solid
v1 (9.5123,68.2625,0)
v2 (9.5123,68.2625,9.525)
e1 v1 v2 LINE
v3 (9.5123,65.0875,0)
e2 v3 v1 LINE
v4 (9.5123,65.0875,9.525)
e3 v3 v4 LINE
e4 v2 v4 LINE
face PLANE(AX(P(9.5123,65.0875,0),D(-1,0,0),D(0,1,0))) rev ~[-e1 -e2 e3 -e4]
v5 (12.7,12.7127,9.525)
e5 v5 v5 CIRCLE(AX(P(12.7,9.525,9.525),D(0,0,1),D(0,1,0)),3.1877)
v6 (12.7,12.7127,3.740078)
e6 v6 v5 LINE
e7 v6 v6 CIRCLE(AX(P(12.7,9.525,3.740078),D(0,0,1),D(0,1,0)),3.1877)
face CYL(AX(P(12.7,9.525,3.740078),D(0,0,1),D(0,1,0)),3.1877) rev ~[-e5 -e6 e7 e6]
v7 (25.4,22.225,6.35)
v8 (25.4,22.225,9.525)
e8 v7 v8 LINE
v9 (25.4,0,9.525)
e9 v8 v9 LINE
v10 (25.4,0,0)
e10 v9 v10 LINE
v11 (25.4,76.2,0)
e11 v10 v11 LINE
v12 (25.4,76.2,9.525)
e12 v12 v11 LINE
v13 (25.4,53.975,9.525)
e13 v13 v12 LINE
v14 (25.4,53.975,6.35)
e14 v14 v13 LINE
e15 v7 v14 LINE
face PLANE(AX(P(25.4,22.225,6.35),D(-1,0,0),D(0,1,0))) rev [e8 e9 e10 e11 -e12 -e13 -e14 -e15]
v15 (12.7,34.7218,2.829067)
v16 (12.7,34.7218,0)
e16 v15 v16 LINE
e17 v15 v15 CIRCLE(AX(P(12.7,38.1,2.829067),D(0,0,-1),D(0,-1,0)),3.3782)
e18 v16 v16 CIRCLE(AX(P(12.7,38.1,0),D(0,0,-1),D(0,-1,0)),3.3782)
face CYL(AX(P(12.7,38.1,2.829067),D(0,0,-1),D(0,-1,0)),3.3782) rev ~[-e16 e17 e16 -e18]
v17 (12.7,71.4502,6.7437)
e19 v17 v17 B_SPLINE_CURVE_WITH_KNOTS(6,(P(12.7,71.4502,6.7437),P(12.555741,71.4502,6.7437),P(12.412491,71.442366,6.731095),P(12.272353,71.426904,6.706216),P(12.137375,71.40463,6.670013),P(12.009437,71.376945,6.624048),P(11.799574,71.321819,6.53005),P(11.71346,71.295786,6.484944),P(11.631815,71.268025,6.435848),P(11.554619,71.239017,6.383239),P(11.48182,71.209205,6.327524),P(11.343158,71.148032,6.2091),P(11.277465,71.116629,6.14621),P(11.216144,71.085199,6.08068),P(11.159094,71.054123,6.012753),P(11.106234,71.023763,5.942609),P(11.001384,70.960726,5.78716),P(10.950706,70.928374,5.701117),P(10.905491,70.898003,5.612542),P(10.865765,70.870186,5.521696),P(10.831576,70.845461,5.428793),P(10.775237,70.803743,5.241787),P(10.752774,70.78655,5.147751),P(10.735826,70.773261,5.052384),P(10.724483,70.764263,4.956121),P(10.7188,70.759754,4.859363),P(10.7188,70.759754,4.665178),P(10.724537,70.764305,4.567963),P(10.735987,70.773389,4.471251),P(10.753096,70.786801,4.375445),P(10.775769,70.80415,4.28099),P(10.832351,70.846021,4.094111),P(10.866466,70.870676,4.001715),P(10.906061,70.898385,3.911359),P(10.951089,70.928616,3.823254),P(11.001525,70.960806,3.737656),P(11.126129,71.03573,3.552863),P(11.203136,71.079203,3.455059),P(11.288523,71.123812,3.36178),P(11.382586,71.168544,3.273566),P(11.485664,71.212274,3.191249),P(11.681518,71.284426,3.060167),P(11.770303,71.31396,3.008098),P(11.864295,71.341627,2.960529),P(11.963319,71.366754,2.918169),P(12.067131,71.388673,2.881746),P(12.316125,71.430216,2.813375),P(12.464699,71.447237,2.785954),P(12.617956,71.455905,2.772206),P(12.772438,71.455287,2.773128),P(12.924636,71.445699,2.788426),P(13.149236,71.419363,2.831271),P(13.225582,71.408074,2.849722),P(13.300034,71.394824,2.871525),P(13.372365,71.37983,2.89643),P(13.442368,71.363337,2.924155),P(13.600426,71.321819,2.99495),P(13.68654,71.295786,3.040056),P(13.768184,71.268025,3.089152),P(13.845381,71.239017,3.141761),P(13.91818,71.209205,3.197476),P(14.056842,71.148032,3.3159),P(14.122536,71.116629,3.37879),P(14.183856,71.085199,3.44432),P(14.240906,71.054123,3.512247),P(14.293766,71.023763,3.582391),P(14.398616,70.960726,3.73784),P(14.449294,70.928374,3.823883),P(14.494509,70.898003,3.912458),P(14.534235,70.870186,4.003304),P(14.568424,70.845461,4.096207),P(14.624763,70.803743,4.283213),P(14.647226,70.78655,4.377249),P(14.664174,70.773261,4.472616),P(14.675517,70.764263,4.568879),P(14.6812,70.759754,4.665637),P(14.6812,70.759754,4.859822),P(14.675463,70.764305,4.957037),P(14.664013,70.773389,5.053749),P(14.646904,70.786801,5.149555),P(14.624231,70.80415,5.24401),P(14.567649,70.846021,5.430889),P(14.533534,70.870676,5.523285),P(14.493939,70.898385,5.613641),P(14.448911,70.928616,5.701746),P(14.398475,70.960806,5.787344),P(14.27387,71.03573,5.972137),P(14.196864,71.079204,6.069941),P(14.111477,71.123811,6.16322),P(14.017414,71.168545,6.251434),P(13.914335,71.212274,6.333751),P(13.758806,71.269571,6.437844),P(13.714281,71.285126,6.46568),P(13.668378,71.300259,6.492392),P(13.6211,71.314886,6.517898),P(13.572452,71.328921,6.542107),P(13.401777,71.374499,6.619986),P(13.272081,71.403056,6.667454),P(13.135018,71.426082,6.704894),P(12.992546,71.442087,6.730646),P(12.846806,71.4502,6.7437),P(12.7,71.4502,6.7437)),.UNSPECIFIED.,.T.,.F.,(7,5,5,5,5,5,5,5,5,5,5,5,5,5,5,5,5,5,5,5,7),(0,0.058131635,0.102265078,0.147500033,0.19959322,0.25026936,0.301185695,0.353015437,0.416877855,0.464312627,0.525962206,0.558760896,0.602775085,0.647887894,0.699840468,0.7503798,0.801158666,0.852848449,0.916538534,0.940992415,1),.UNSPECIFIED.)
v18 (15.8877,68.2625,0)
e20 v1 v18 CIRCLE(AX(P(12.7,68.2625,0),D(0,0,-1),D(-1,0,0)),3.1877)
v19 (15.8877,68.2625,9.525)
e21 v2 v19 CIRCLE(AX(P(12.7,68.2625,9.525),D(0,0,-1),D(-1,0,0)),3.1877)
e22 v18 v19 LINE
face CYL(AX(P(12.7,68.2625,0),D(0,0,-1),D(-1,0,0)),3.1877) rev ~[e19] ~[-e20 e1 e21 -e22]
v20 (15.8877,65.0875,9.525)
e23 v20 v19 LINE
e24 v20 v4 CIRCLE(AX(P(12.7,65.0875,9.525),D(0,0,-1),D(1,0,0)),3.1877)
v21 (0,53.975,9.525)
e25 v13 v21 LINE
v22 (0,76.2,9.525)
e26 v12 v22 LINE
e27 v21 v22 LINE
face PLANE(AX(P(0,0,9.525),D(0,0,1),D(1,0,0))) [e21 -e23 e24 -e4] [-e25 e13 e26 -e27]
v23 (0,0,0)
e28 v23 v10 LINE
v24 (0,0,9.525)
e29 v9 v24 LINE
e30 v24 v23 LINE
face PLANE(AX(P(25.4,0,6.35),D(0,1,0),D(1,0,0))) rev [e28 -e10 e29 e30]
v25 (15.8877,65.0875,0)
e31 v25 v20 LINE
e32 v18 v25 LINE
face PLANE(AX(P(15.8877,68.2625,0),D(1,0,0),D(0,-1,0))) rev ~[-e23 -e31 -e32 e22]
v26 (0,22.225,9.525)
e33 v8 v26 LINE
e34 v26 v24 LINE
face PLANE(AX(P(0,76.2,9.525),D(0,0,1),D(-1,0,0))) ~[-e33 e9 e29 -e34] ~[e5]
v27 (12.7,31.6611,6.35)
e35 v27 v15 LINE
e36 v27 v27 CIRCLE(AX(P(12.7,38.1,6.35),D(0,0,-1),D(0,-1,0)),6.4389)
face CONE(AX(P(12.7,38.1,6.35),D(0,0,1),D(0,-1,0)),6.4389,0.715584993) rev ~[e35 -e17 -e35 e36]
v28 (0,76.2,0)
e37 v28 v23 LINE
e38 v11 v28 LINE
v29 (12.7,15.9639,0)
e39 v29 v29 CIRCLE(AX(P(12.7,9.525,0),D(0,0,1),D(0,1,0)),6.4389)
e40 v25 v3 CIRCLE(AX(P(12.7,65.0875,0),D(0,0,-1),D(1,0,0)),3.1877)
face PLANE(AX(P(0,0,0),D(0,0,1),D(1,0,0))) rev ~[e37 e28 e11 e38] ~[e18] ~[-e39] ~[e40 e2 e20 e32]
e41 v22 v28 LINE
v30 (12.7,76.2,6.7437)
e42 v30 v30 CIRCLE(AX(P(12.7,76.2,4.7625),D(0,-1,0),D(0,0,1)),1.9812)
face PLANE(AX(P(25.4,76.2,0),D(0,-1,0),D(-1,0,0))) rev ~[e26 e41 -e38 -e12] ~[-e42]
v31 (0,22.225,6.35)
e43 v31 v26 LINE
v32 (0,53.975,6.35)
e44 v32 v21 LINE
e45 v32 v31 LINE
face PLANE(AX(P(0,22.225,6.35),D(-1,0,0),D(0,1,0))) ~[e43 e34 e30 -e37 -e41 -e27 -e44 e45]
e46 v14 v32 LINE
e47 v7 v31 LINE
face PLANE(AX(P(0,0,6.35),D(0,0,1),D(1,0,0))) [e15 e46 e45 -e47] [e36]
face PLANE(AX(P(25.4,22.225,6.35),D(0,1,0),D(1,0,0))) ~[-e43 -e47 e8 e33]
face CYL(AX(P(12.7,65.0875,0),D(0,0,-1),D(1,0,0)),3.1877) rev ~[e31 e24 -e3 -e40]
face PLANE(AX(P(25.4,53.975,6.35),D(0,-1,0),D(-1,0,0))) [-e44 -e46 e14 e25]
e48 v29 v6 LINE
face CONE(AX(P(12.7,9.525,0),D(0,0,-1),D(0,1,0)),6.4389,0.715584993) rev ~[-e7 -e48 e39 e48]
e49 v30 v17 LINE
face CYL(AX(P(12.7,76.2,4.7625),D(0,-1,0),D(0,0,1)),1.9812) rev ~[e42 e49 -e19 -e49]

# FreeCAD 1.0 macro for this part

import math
import FreeCAD as App
import Part
import Sketcher
Q = App.Units.Quantity


def add_polygon(sketch, points):
    """Adds a closed chain of lines whose ends are joined by coincident constraints."""
    first, n = sketch.GeometryCount, len(points)
    for a, b in zip(points, points[1:] + points[:1]):
        sketch.addGeometry(Part.LineSegment(App.Vector(*a, 0), App.Vector(*b, 0)), False)
    for i in range(n):
        sketch.addConstraint(Sketcher.Constraint("Coincident", first + i, 2, first + (i + 1) % n, 1))

doc = App.newDocument("Part")
params = doc.addObject("Spreadsheet::Sheet", "Params")
for row, (alias, value) in enumerate([
    ("sketch1_width", "1 in"),
    ("sketch1_height", "3 in"),
    ("pad1_length", "0.25 in"),
    ("sketch2_width", "1 in"),
    ("sketch2_height", "0.875 in"),
    ("pad2_length", "0.125 in"),
    ("sketch3_diameter", "0.266 in"),
    ("hole_diameter", "0.266 in"),
    ("hole_csink_diameter", "0.507 in"),
    ("sketch4_diameter", "0.251 in"),
    ("hole2_diameter", "0.251 in"),
    ("hole2_csink_diameter", "0.507 in"),
    ("sketch5_height", "0.125 in"),
    ("sketch6_diameter", "0.156 in"),
    ("hole3_diameter", "0.156 in"),
    ("hole3_depth", "0.375 in"),
], start=1):
    params.set(f"A{row}", alias)
    params.set(f"B{row}", "=" + value)
    params.setAlias(f"B{row}", alias)

body = doc.addObject("PartDesign::Body", "Body")

# Sketch on XY plane
sketch1 = body.newObject("Sketcher::SketchObject", "Sketch")
sketch1.AttachmentSupport = (doc.getObject("XY_Plane"), [""])
sketch1.MapMode = "FlatFace"
add_polygon(sketch1, [(0, 76), (0, 0), (25, 0), (25, 76)])  # lines 0-3
sketch1.addConstraint([
    Sketcher.Constraint("Vertical", 0),
    Sketcher.Constraint("Horizontal", 1),
    Sketcher.Constraint("Vertical", 2),
    Sketcher.Constraint("Horizontal", 3),
    Sketcher.Constraint("Coincident", 0, 2, -1, 1),
    Sketcher.Constraint("DistanceX", 1, 1, 1, 2, Q("1 in")),
    Sketcher.Constraint("DistanceY", 0, 2, 0, 1, Q("3 in")),
])
sketch1.setExpression("Constraints[9]", "Params.sketch1_width")
sketch1.setExpression("Constraints[10]", "Params.sketch1_height")
pad1 = body.newObject("PartDesign::Pad", "Pad")
pad1.Profile = sketch1
pad1.setExpression("Length", "Params.pad1_length")

# Sketch on XY plane
sketch2 = body.newObject("Sketcher::SketchObject", "Sketch001")
sketch2.AttachmentSupport = (doc.getObject("XY_Plane"), [""])
sketch2.MapMode = "FlatFace"
sketch2.AttachmentOffset = App.Placement(App.Vector(0, 0, 0.25 * 25.4), App.Rotation())
add_polygon(sketch2, [(25, 54), (25, 76), (0, 76), (0, 54)])  # lines 0-3
sketch2.addConstraint([
    Sketcher.Constraint("Vertical", 0),
    Sketcher.Constraint("Horizontal", 1),
    Sketcher.Constraint("Vertical", 2),
    Sketcher.Constraint("Horizontal", 3),
    Sketcher.Constraint("PointOnObject", 1, 2, -2),
    Sketcher.Constraint("DistanceX", 1, 2, 1, 1, Q("1 in")),
    Sketcher.Constraint("DistanceY", 0, 1, 0, 2, Q("0.875 in")),
    Sketcher.Constraint("DistanceY", -1, 1, 0, 2, Q("3 in")),
])
sketch2.setExpression("Constraints[9]", "Params.sketch2_width")
sketch2.setExpression("Constraints[10]", "Params.sketch2_height")
pad2 = body.newObject("PartDesign::Pad", "Pad001")
pad2.Profile = sketch2
pad2.setExpression("Length", "Params.pad2_length")
doc.recompute()

datumplane = body.newObject("PartDesign::Plane", "DatumPlane")
datumplane.AttachmentSupport = (doc.getObject("XZ_Plane"), [""])
datumplane.MapMode = "FlatFace"
datumplane.AttachmentOffset = App.Placement(App.Vector(0, 0, -1.5 * 25.4), App.Rotation())
mirrored = body.newObject("PartDesign::Mirrored", "Mirrored")
mirrored.Originals = [pad2]
mirrored.MirrorPlane = (datumplane, [""])
body.Tip = mirrored

# Sketch on XY plane
sketch3 = body.newObject("Sketcher::SketchObject", "Sketch002")
sketch3.AttachmentSupport = (doc.getObject("XY_Plane"), [""])
sketch3.MapMode = "FlatFace"
sketch3.AttachmentOffset = App.Placement(App.Vector(0, 0, 0.25 * 25.4), App.Rotation())
sketch3.addGeometry(Part.Circle(App.Vector(12.7, 38.1, 0), App.Vector(0, 0, 1), 3.4), False)
sketch3.addConstraint([
    Sketcher.Constraint("Diameter", 0, Q("0.266 in")),
    Sketcher.Constraint("DistanceX", -1, 1, 0, 3, Q("0.5 in")),
    Sketcher.Constraint("DistanceY", -1, 1, 0, 3, Q("1.5 in")),
])
sketch3.setExpression("Constraints[0]", "Params.sketch3_diameter")
doc.recompute()
hole = body.newObject("PartDesign::Hole", "Hole")
hole.Profile = sketch3
hole.ThreadType = "None"
hole.setExpression("Diameter", "Params.hole_diameter")
hole.DepthType = "ThroughAll"
hole.HoleCutType = "Countersink"
hole.setExpression("HoleCutDiameter", "Params.hole_csink_diameter")
hole.HoleCutCountersinkAngle = 82

# Sketch on XY plane
sketch4 = body.newObject("Sketcher::SketchObject", "Sketch003")
sketch4.AttachmentSupport = (doc.getObject("XY_Plane"), [""])
sketch4.MapMode = "FlatFace"
sketch4.addGeometry(Part.Circle(App.Vector(12.7, 9.5, 0), App.Vector(0, 0, 1), 3.2), False)
sketch4.addConstraint([
    Sketcher.Constraint("Diameter", 0, Q("0.251 in")),
    Sketcher.Constraint("DistanceX", -1, 1, 0, 3, Q("0.5 in")),
    Sketcher.Constraint("DistanceY", -1, 1, 0, 3, Q("0.375 in")),
])
sketch4.setExpression("Constraints[0]", "Params.sketch4_diameter")
doc.recompute()
hole2 = body.newObject("PartDesign::Hole", "Hole001")
hole2.Profile = sketch4
hole2.ThreadType = "None"
hole2.setExpression("Diameter", "Params.hole2_diameter")
hole2.DepthType = "ThroughAll"
hole2.HoleCutType = "Countersink"
hole2.setExpression("HoleCutDiameter", "Params.hole2_csink_diameter")
hole2.HoleCutCountersinkAngle = 82
hole2.Reversed = True

# Sketch on XY plane
sketch5 = body.newObject("Sketcher::SketchObject", "Sketch004")
sketch5.AttachmentSupport = (doc.getObject("XY_Plane"), [""])
sketch5.MapMode = "FlatFace"
sketch5.addGeometry([
    Part.ArcOfCircle(Part.Circle(App.Vector(12.7, 68.3, 0), App.Vector(0, 0, 1), 3.2), math.radians(0), math.radians(180)),
    Part.LineSegment(App.Vector(15.9, 68.3, 0), App.Vector(15.9, 65.1, 0)),
    Part.ArcOfCircle(Part.Circle(App.Vector(12.7, 65.1, 0), App.Vector(0, 0, 1), 3.2), math.radians(180), math.radians(360)),
    Part.LineSegment(App.Vector(9.5, 65.1, 0), App.Vector(9.5, 68.3, 0)),
], False)
sketch5.addConstraint([
    Sketcher.Constraint("Tangent", 0, 1, 1, 1),
    Sketcher.Constraint("Tangent", 1, 2, 2, 2),
    Sketcher.Constraint("Tangent", 2, 1, 3, 1),
    Sketcher.Constraint("Tangent", 3, 2, 0, 2),
    Sketcher.Constraint("Vertical", 1),
    Sketcher.Constraint("Vertical", 3),
    Sketcher.Constraint("Radius", 0, Q("0.1255 in")),
    Sketcher.Constraint("DistanceY", 1, 2, 1, 1, Q("0.125 in")),
    Sketcher.Constraint("DistanceX", -1, 1, 0, 3, Q("0.5 in")),
    Sketcher.Constraint("DistanceY", -1, 1, 0, 3, Q("2.6875 in")),
])
sketch5.setExpression("Constraints[7]", "Params.sketch5_height")
pocket1 = body.newObject("PartDesign::Pocket", "Pocket")
pocket1.Profile = sketch5
pocket1.Type = "ThroughAll"
pocket1.Reversed = True

# Sketch on XZ plane
sketch6 = body.newObject("Sketcher::SketchObject", "Sketch005")
sketch6.AttachmentSupport = (doc.getObject("XZ_Plane"), [""])
sketch6.MapMode = "FlatFace"
sketch6.AttachmentOffset = App.Placement(App.Vector(0, 0, -3 * 25.4), App.Rotation())
sketch6.addGeometry(Part.Circle(App.Vector(12.7, 4.8, 0), App.Vector(0, 0, 1), 2), False)
sketch6.addConstraint([
    Sketcher.Constraint("Diameter", 0, Q("0.156 in")),
    Sketcher.Constraint("DistanceX", -1, 1, 0, 3, Q("0.5 in")),
    Sketcher.Constraint("DistanceY", -1, 1, 0, 3, Q("0.1875 in")),
])
sketch6.setExpression("Constraints[0]", "Params.sketch6_diameter")
doc.recompute()
hole3 = body.newObject("PartDesign::Hole", "Hole002")
hole3.Profile = sketch6
hole3.ThreadType = "None"
hole3.setExpression("Diameter", "Params.hole3_diameter")
hole3.DepthType = "Dimension"
hole3.setExpression("Depth", "Params.hole3_depth")
hole3.DrillPoint = "Angled"
hole3.DrillPointAngle = 118
hole3.Reversed = True

doc.recompute()
